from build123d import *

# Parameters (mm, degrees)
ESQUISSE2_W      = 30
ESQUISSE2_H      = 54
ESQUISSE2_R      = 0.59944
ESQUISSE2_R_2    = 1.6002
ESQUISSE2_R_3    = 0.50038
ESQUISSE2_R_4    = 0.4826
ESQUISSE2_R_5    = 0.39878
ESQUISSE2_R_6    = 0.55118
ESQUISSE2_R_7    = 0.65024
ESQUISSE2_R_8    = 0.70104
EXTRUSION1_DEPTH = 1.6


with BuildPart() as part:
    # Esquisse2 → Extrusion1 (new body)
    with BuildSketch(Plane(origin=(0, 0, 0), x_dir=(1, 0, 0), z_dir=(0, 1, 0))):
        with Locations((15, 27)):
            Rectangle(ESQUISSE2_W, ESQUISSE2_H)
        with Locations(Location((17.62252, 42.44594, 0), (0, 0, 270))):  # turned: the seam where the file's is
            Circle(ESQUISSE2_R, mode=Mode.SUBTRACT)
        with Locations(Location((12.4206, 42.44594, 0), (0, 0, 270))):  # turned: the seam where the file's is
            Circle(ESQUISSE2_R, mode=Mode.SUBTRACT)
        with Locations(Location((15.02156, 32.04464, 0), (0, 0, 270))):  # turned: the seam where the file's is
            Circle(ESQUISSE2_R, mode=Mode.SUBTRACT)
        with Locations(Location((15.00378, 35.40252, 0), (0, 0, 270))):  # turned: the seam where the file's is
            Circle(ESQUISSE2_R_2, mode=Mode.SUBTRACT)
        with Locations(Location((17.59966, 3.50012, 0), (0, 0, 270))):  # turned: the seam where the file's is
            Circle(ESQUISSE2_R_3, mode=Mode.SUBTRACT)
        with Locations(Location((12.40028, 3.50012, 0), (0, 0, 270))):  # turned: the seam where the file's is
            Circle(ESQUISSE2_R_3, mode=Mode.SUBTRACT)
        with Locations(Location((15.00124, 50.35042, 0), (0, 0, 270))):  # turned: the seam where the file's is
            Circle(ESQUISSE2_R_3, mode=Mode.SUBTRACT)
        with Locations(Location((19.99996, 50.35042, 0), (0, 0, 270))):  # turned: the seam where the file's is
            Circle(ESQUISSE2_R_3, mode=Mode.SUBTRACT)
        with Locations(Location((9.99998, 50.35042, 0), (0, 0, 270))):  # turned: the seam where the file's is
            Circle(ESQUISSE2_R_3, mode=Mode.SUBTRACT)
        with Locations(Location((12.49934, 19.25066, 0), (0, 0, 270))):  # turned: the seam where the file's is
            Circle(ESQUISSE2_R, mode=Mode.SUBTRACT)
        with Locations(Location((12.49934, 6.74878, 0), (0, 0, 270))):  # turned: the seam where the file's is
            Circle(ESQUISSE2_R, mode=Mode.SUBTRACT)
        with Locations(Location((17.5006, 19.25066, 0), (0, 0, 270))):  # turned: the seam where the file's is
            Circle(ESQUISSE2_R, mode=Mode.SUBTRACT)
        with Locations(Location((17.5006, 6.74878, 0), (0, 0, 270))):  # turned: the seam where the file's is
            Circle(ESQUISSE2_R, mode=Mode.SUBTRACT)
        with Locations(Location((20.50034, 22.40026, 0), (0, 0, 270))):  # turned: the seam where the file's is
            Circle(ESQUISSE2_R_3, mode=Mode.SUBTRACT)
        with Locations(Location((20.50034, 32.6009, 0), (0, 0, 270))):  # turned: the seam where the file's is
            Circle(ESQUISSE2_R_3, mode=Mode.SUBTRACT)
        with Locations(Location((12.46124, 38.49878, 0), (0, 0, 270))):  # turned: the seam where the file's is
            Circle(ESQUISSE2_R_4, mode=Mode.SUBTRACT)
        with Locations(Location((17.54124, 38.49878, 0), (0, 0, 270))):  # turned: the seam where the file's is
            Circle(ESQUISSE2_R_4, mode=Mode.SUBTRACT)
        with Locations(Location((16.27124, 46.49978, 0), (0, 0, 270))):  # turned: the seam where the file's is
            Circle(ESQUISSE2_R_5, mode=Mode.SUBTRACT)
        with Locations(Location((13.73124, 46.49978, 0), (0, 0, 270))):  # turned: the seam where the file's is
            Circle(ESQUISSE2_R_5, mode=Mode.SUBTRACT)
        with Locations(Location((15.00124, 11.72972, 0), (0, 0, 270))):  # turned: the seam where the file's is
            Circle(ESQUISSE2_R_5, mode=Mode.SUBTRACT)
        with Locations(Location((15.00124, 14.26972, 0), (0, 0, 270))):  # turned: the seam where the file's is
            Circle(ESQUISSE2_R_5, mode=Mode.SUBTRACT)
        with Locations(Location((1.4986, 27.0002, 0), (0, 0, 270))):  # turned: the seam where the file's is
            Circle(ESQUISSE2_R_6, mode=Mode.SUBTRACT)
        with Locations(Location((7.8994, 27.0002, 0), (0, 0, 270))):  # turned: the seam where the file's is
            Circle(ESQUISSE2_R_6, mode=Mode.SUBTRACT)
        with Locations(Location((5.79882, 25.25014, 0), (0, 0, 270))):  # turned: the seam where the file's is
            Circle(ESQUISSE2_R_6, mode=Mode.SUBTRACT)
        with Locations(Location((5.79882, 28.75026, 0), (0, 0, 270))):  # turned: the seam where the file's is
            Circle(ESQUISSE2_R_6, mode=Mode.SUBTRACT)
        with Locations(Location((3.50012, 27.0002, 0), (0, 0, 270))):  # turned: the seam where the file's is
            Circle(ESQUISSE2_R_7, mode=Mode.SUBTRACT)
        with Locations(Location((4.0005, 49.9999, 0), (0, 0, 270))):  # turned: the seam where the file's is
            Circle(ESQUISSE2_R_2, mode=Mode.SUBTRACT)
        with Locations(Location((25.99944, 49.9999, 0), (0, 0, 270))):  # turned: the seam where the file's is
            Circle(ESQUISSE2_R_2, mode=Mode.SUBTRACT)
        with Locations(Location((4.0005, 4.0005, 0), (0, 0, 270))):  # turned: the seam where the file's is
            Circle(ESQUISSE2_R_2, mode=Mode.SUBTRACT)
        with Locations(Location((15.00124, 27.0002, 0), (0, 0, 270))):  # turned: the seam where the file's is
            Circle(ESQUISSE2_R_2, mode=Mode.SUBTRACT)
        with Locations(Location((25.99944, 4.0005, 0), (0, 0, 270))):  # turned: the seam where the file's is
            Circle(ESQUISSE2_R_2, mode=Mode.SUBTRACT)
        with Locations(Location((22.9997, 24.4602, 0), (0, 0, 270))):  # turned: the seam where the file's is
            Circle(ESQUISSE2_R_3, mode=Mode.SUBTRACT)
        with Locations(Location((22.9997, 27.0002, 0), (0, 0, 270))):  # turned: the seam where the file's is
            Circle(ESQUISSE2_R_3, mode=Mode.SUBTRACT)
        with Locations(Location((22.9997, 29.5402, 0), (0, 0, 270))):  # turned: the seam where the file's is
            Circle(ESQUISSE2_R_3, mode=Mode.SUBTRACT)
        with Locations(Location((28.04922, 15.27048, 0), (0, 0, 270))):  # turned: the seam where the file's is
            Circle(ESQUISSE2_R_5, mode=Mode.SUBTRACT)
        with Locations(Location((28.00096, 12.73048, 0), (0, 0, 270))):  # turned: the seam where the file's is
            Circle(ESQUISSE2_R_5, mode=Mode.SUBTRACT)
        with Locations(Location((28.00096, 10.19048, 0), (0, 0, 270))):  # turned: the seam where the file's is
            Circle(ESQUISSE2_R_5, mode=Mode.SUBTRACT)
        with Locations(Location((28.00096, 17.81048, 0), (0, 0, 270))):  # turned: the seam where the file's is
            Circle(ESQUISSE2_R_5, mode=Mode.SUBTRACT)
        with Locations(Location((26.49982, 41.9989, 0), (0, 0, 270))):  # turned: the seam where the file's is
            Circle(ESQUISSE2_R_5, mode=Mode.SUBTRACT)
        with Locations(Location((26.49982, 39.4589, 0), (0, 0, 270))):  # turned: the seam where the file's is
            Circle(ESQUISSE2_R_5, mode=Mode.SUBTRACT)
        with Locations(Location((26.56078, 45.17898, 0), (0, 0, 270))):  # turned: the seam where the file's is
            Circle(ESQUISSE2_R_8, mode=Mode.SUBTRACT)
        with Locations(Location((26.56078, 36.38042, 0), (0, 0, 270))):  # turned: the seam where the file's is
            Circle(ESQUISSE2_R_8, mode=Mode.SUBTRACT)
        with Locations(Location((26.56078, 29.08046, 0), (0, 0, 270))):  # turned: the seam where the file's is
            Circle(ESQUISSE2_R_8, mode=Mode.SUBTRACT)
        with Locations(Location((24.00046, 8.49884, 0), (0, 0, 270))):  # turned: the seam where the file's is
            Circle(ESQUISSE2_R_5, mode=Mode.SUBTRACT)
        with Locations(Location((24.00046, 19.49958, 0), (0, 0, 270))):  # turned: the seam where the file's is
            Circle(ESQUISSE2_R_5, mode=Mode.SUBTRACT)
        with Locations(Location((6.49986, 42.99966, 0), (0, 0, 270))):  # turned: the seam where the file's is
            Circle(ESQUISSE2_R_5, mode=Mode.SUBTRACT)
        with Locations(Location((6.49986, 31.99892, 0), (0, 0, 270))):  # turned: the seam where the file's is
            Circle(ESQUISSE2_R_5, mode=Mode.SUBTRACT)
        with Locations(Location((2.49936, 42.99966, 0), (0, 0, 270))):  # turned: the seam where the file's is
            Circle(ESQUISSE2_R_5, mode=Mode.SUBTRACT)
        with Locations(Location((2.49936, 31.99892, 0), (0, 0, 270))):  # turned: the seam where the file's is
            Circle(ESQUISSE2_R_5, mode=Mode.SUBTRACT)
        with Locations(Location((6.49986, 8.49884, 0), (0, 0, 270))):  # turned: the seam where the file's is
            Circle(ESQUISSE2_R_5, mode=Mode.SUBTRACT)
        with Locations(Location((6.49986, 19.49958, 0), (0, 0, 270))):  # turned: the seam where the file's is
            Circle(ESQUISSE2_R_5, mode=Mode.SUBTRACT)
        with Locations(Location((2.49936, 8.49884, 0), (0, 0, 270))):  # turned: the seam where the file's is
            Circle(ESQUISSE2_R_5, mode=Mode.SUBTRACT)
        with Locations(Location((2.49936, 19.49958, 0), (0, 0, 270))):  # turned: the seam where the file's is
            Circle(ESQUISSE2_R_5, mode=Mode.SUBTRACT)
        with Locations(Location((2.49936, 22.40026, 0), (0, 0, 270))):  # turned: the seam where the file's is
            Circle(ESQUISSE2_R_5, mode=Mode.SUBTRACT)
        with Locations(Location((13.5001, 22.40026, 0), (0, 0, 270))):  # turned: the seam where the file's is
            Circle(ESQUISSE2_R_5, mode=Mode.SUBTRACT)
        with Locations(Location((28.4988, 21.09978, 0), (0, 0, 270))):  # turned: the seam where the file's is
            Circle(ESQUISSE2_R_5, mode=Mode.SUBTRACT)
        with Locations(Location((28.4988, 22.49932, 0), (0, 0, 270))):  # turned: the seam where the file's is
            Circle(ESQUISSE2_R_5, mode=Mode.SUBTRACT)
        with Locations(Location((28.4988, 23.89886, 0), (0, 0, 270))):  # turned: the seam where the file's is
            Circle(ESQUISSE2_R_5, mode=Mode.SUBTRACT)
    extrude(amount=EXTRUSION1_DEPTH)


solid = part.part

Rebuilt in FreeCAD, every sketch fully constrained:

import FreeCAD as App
import Part
import Sketcher


def add_polygon(sketch, points):
    """Adds a closed chain of lines whose ends are joined by coincident constraints."""
    first, n = sketch.GeometryCount, len(points)
    for a, b in zip(points, points[1:] + points[:1]):
        sketch.addGeometry(Part.LineSegment(App.Vector(*a, 0), App.Vector(*b, 0)), False)
    for i in range(n):
        sketch.addConstraint(Sketcher.Constraint("Coincident", first + i, 2, first + (i + 1) % n, 1))

doc = App.newDocument("Part")
params = doc.addObject("Spreadsheet::Sheet", "Params")
for row, (alias, value) in enumerate([
    ("sketch1_width", "30 mm"),
    ("sketch1_height", "54 mm"),
    ("pad1_length", "1.6 mm"),
], start=1):
    params.set(f"A{row}", alias)
    params.set(f"B{row}", "=" + value)
    params.setAlias(f"B{row}", alias)

body = doc.addObject("PartDesign::Body", "Body")

sketch1 = body.newObject("Sketcher::SketchObject", "Sketch")
sketch1.AttachmentSupport = (doc.getObject("XZ_Plane"), [""])
sketch1.MapMode = "FlatFace"
add_polygon(sketch1, [(0, -54), (0, 0), (30, 0), (30, -54)])
sketch1.addGeometry(Part.Circle(App.Vector(4, -4, 0), App.Vector(0, 0, 1), 1.6), False)
sketch1.addGeometry(Part.Circle(App.Vector(2.5, -8.5, 0), App.Vector(0, 0, 1), 0.4), False)
sketch1.addGeometry(Part.Circle(App.Vector(6.5, -8.5, 0), App.Vector(0, 0, 1), 0.4), False)
sketch1.addGeometry(Part.Circle(App.Vector(12.4, -3.5, 0), App.Vector(0, 0, 1), 0.5), False)
sketch1.addGeometry(Part.Circle(App.Vector(12.5, -6.75, 0), App.Vector(0, 0, 1), 0.6), False)
sketch1.addGeometry(Part.Circle(App.Vector(2.5, -19.5, 0), App.Vector(0, 0, 1), 0.4), False)
sketch1.addGeometry(Part.Circle(App.Vector(6.5, -19.5, 0), App.Vector(0, 0, 1), 0.4), False)
sketch1.addGeometry(Part.Circle(App.Vector(2.5, -22.4, 0), App.Vector(0, 0, 1), 0.4), False)
sketch1.addGeometry(Part.Circle(App.Vector(5.8, -25.25, 0), App.Vector(0, 0, 1), 0.55), False)
sketch1.addGeometry(Part.Circle(App.Vector(12.5, -19.25, 0), App.Vector(0, 0, 1), 0.6), False)
sketch1.addGeometry(Part.Circle(App.Vector(13.5, -22.4, 0), App.Vector(0, 0, 1), 0.4), False)
sketch1.addGeometry(Part.Circle(App.Vector(17.6, -3.5, 0), App.Vector(0, 0, 1), 0.5), False)
sketch1.addGeometry(Part.Circle(App.Vector(17.5, -6.75, 0), App.Vector(0, 0, 1), 0.6), False)
sketch1.addGeometry(Part.Circle(App.Vector(15, -11.73, 0), App.Vector(0, 0, 1), 0.4), False)
sketch1.addGeometry(Part.Circle(App.Vector(15, -14.27, 0), App.Vector(0, 0, 1), 0.4), False)
sketch1.addGeometry(Part.Circle(App.Vector(24, -8.5, 0), App.Vector(0, 0, 1), 0.4), False)
sketch1.addGeometry(Part.Circle(App.Vector(26, -4, 0), App.Vector(0, 0, 1), 1.6), False)
sketch1.addGeometry(Part.Circle(App.Vector(28, -10.19, 0), App.Vector(0, 0, 1), 0.4), False)
sketch1.addGeometry(Part.Circle(App.Vector(28, -12.73, 0), App.Vector(0, 0, 1), 0.4), False)
sketch1.addGeometry(Part.Circle(App.Vector(17.5, -19.25, 0), App.Vector(0, 0, 1), 0.6), False)
sketch1.addGeometry(Part.Circle(App.Vector(20.5, -22.4, 0), App.Vector(0, 0, 1), 0.5), False)
sketch1.addGeometry(Part.Circle(App.Vector(24, -19.5, 0), App.Vector(0, 0, 1), 0.4), False)
sketch1.addGeometry(Part.Circle(App.Vector(28.05, -15.27, 0), App.Vector(0, 0, 1), 0.4), False)
sketch1.addGeometry(Part.Circle(App.Vector(28, -17.81, 0), App.Vector(0, 0, 1), 0.4), False)
sketch1.addGeometry(Part.Circle(App.Vector(23, -24.46, 0), App.Vector(0, 0, 1), 0.5), False)
sketch1.addGeometry(Part.Circle(App.Vector(28.5, -21.1, 0), App.Vector(0, 0, 1), 0.4), False)
sketch1.addGeometry(Part.Circle(App.Vector(28.5, -22.5, 0), App.Vector(0, 0, 1), 0.4), False)
sketch1.addGeometry(Part.Circle(App.Vector(28.5, -23.9, 0), App.Vector(0, 0, 1), 0.4), False)
sketch1.addGeometry(Part.Circle(App.Vector(1.5, -27, 0), App.Vector(0, 0, 1), 0.55), False)
sketch1.addGeometry(Part.Circle(App.Vector(3.5, -27, 0), App.Vector(0, 0, 1), 0.65), False)
sketch1.addGeometry(Part.Circle(App.Vector(2.5, -32, 0), App.Vector(0, 0, 1), 0.4), False)
sketch1.addGeometry(Part.Circle(App.Vector(5.8, -28.75, 0), App.Vector(0, 0, 1), 0.55), False)
sketch1.addGeometry(Part.Circle(App.Vector(7.9, -27, 0), App.Vector(0, 0, 1), 0.55), False)
sketch1.addGeometry(Part.Circle(App.Vector(6.5, -32, 0), App.Vector(0, 0, 1), 0.4), False)
sketch1.addGeometry(Part.Circle(App.Vector(12.46, -38.5, 0), App.Vector(0, 0, 1), 0.48), False)
sketch1.addGeometry(Part.Circle(App.Vector(2.5, -43, 0), App.Vector(0, 0, 1), 0.4), False)
sketch1.addGeometry(Part.Circle(App.Vector(6.5, -43, 0), App.Vector(0, 0, 1), 0.4), False)
sketch1.addGeometry(Part.Circle(App.Vector(4, -50, 0), App.Vector(0, 0, 1), 1.6), False)
sketch1.addGeometry(Part.Circle(App.Vector(12.42, -42.45, 0), App.Vector(0, 0, 1), 0.6), False)
sketch1.addGeometry(Part.Circle(App.Vector(10, -50.35, 0), App.Vector(0, 0, 1), 0.5), False)
sketch1.addGeometry(Part.Circle(App.Vector(13.73, -46.5, 0), App.Vector(0, 0, 1), 0.4), False)
sketch1.addGeometry(Part.Circle(App.Vector(15, -27, 0), App.Vector(0, 0, 1), 1.6), False)
sketch1.addGeometry(Part.Circle(App.Vector(15.02, -32.04, 0), App.Vector(0, 0, 1), 0.6), False)
sketch1.addGeometry(Part.Circle(App.Vector(20.5, -32.6, 0), App.Vector(0, 0, 1), 0.5), False)
sketch1.addGeometry(Part.Circle(App.Vector(15, -35.4, 0), App.Vector(0, 0, 1), 1.6), False)
sketch1.addGeometry(Part.Circle(App.Vector(17.54, -38.5, 0), App.Vector(0, 0, 1), 0.48), False)
sketch1.addGeometry(Part.Circle(App.Vector(23, -27, 0), App.Vector(0, 0, 1), 0.5), False)
sketch1.addGeometry(Part.Circle(App.Vector(23, -29.54, 0), App.Vector(0, 0, 1), 0.5), False)
sketch1.addGeometry(Part.Circle(App.Vector(26.56, -29.08, 0), App.Vector(0, 0, 1), 0.7), False)
sketch1.addGeometry(Part.Circle(App.Vector(26.56, -36.38, 0), App.Vector(0, 0, 1), 0.7), False)
sketch1.addGeometry(Part.Circle(App.Vector(17.62, -42.45, 0), App.Vector(0, 0, 1), 0.6), False)
sketch1.addGeometry(Part.Circle(App.Vector(16.27, -46.5, 0), App.Vector(0, 0, 1), 0.4), False)
sketch1.addGeometry(Part.Circle(App.Vector(15, -50.35, 0), App.Vector(0, 0, 1), 0.5), False)
sketch1.addGeometry(Part.Circle(App.Vector(20, -50.35, 0), App.Vector(0, 0, 1), 0.5), False)
sketch1.addGeometry(Part.Circle(App.Vector(26.5, -39.46, 0), App.Vector(0, 0, 1), 0.4), False)
sketch1.addGeometry(Part.Circle(App.Vector(26.5, -42, 0), App.Vector(0, 0, 1), 0.4), False)
sketch1.addGeometry(Part.Circle(App.Vector(26.56, -45.18, 0), App.Vector(0, 0, 1), 0.7), False)
sketch1.addGeometry(Part.Circle(App.Vector(26, -50, 0), App.Vector(0, 0, 1), 1.6), False)
sketch1.addConstraint([
    Sketcher.Constraint("Vertical", 0),
    Sketcher.Constraint("Horizontal", 1),
    Sketcher.Constraint("Vertical", 2),
    Sketcher.Constraint("Horizontal", 3),
    Sketcher.Constraint("Coincident", 0, 2, -1, 1),
    Sketcher.Constraint("Equal", 5, 6),
    Sketcher.Constraint("Equal", 6, 9),
    Sketcher.Constraint("Equal", 9, 10),
    Sketcher.Constraint("Equal", 10, 11),
    Sketcher.Constraint("Equal", 8, 13),
    Sketcher.Constraint("Equal", 11, 14),
    Sketcher.Constraint("Equal", 7, 15),
    Sketcher.Constraint("Equal", 13, 16),
    Sketcher.Constraint("Equal", 14, 17),
    Sketcher.Constraint("Equal", 17, 18),
    Sketcher.Constraint("Equal", 18, 19),
    Sketcher.Constraint("Equal", 4, 20),
    Sketcher.Constraint("Equal", 19, 21),
    Sketcher.Constraint("Equal", 21, 22),
    Sketcher.Constraint("Equal", 16, 23),
    Sketcher.Constraint("Equal", 15, 24),
    Sketcher.Constraint("Equal", 22, 25),
    Sketcher.Constraint("Equal", 25, 26),
    Sketcher.Constraint("Equal", 26, 27),
    Sketcher.Constraint("Equal", 24, 28),
    Sketcher.Constraint("Equal", 27, 29),
    Sketcher.Constraint("Equal", 29, 30),
    Sketcher.Constraint("Equal", 30, 31),
    Sketcher.Constraint("Equal", 12, 32),
    Sketcher.Constraint("Equal", 31, 34),
    Sketcher.Constraint("Equal", 32, 35),
    Sketcher.Constraint("Equal", 35, 36),
    Sketcher.Constraint("Equal", 34, 37),
    Sketcher.Constraint("Equal", 37, 39),
    Sketcher.Constraint("Equal", 39, 40),
    Sketcher.Constraint("Equal", 20, 41),
    Sketcher.Constraint("Equal", 23, 42),
    Sketcher.Constraint("Equal", 28, 43),
    Sketcher.Constraint("Equal", 40, 44),
    Sketcher.Constraint("Equal", 41, 45),
    Sketcher.Constraint("Equal", 42, 46),
    Sketcher.Constraint("Equal", 43, 47),
    Sketcher.Constraint("Equal", 45, 48),
    Sketcher.Constraint("Equal", 38, 49),
    Sketcher.Constraint("Equal", 47, 50),
    Sketcher.Constraint("Equal", 50, 51),
    Sketcher.Constraint("Equal", 52, 53),
    Sketcher.Constraint("Equal", 46, 54),
    Sketcher.Constraint("Equal", 44, 55),
    Sketcher.Constraint("Equal", 51, 56),
    Sketcher.Constraint("Equal", 56, 57),
    Sketcher.Constraint("Equal", 55, 58),
    Sketcher.Constraint("Equal", 58, 59),
    Sketcher.Constraint("Equal", 53, 60),
    Sketcher.Constraint("Equal", 48, 61),
    Sketcher.Constraint("Horizontal", 5, 3, 6, 3),
    Sketcher.Constraint("Horizontal", 9, 3, 10, 3),
    Sketcher.Constraint("Horizontal", 11, 3, 14, 3),
    Sketcher.Constraint("Horizontal", 7, 3, 15, 3),
    Sketcher.Constraint("Horizontal", 8, 3, 16, 3),
    Sketcher.Constraint("Horizontal", 6, 3, 19, 3),
    Sketcher.Constraint("Horizontal", 4, 3, 20, 3),
    Sketcher.Constraint("Horizontal", 13, 3, 23, 3),
    Sketcher.Constraint("Horizontal", 14, 3, 24, 3),
    Sketcher.Constraint("Horizontal", 10, 3, 25, 3),
    Sketcher.Constraint("Horizontal", 32, 3, 33, 3),
    Sketcher.Constraint("Horizontal", 33, 3, 36, 3),
    Sketcher.Constraint("Horizontal", 34, 3, 37, 3),
    Sketcher.Constraint("Horizontal", 39, 3, 40, 3),
    Sketcher.Constraint("Horizontal", 36, 3, 45, 3),
    Sketcher.Constraint("Horizontal", 38, 3, 49, 3),
    Sketcher.Constraint("Horizontal", 45, 3, 50, 3),
    Sketcher.Constraint("Horizontal", 42, 3, 54, 3),
    Sketcher.Constraint("Horizontal", 44, 3, 55, 3),
    Sketcher.Constraint("Horizontal", 43, 3, 56, 3),
    Sketcher.Constraint("Horizontal", 56, 3, 57, 3),
    Sketcher.Constraint("Horizontal", 41, 3, 61, 3),
    Sketcher.Constraint("Vertical", 5, 3, 9, 3),
    Sketcher.Constraint("Vertical", 6, 3, 10, 3),
    Sketcher.Constraint("Vertical", 9, 3, 11, 3),
    Sketcher.Constraint("Vertical", 8, 3, 13, 3),
    Sketcher.Constraint("Vertical", 17, 3, 18, 3),
    Sketcher.Constraint("Vertical", 21, 3, 22, 3),
    Sketcher.Constraint("Vertical", 16, 3, 23, 3),
    Sketcher.Constraint("Vertical", 19, 3, 25, 3),
    Sketcher.Constraint("Vertical", 22, 3, 27, 3),
    Sketcher.Constraint("Vertical", 29, 3, 30, 3),
    Sketcher.Constraint("Vertical", 30, 3, 31, 3),
    Sketcher.Constraint("Vertical", 11, 3, 34, 3),
    Sketcher.Constraint("Vertical", 12, 3, 35, 3),
    Sketcher.Constraint("Vertical", 10, 3, 37, 3),
    Sketcher.Constraint("Vertical", 34, 3, 39, 3),
    Sketcher.Constraint("Vertical", 37, 3, 40, 3),
    Sketcher.Constraint("Vertical", 4, 3, 41, 3),
    Sketcher.Constraint("Vertical", 18, 3, 45, 3),
    Sketcher.Constraint("Vertical", 24, 3, 47, 3),
    Sketcher.Constraint("Vertical", 28, 3, 50, 3),
    Sketcher.Constraint("Vertical", 50, 3, 51, 3),
    Sketcher.Constraint("Vertical", 52, 3, 53, 3),
    Sketcher.Constraint("Vertical", 45, 3, 56, 3),
    Sketcher.Constraint("Vertical", 58, 3, 59, 3),
    Sketcher.Constraint("Vertical", 53, 3, 60, 3),
    Sketcher.Constraint("Vertical", 20, 3, 61, 3),
    Sketcher.Constraint("DistanceX", 1, 1, 1, 2, 30.0),
    Sketcher.Constraint("DistanceY", 0, 1, 0, 2, 54.0),
    Sketcher.Constraint("Diameter", 4, 3.2004),
    Sketcher.Constraint("Diameter", 38, 0.9652),
    Sketcher.Constraint("Diameter", 5, 0.79756),
    Sketcher.Constraint("Diameter", 7, 1.00076),
    Sketcher.Constraint("Diameter", 8, 1.19888),
    Sketcher.Constraint("Diameter", 12, 1.10236),
    Sketcher.Constraint("Diameter", 33, 1.30048),
    Sketcher.Constraint("Diameter", 52, 1.40208),
    Sketcher.Constraint("DistanceX", -1, 1, 4, 3, 4.0005),
    Sketcher.Constraint("DistanceY", 4, 3, -1, 1, 4.0005),
    Sketcher.Constraint("DistanceX", -1, 1, 14, 3, 13.5001),
    Sketcher.Constraint("DistanceX", -1, 1, 16, 3, 17.5006),
    Sketcher.Constraint("DistanceX", -1, 1, 28, 3, 22.9997),
    Sketcher.Constraint("DistanceY", 28, 3, -1, 1, 24.4602),
    Sketcher.Constraint("DistanceX", -1, 1, 29, 3, 28.4988),
    Sketcher.Constraint("DistanceX", -1, 1, 32, 3, 1.4986),
    Sketcher.Constraint("DistanceY", 32, 3, -1, 1, 27.0002),
    Sketcher.Constraint("DistanceX", -1, 1, 36, 3, 7.8994),
    Sketcher.Constraint("DistanceY", 41, 3, -1, 1, 49.9999),
    Sketcher.Constraint("DistanceX", -1, 1, 42, 3, 12.4206),
    Sketcher.Constraint("DistanceY", 47, 3, -1, 1, 32.6009),
    Sketcher.Constraint("DistanceY", 51, 3, -1, 1, 29.5402),
    Sketcher.Constraint("DistanceY", 58, 3, -1, 1, 39.4589),
    Sketcher.Constraint("DistanceY", 59, 3, -1, 1, 41.9989),
    Sketcher.Constraint("DistanceX", -1, 1, 5, 3, 2.49936),
    Sketcher.Constraint("DistanceY", 5, 3, -1, 1, 8.49884),
    Sketcher.Constraint("DistanceX", -1, 1, 6, 3, 6.49986),
    Sketcher.Constraint("DistanceX", -1, 1, 7, 3, 12.40028),
    Sketcher.Constraint("DistanceY", 7, 3, -1, 1, 3.50012),
    Sketcher.Constraint("DistanceX", -1, 1, 8, 3, 12.49934),
    Sketcher.Constraint("DistanceY", 8, 3, -1, 1, 6.74878),
    Sketcher.Constraint("DistanceY", 9, 3, -1, 1, 19.49958),
    Sketcher.Constraint("DistanceY", 11, 3, -1, 1, 22.40026),
    Sketcher.Constraint("DistanceX", -1, 1, 12, 3, 5.79882),
    Sketcher.Constraint("DistanceY", 12, 3, -1, 1, 25.25014),
    Sketcher.Constraint("DistanceY", 13, 3, -1, 1, 19.25066),
    Sketcher.Constraint("DistanceX", -1, 1, 15, 3, 17.59966),
    Sketcher.Constraint("DistanceX", -1, 1, 17, 3, 15.00124),
    Sketcher.Constraint("DistanceY", 17, 3, -1, 1, 11.72972),
    Sketcher.Constraint("DistanceY", 18, 3, -1, 1, 14.26972),
    Sketcher.Constraint("DistanceX", -1, 1, 19, 3, 24.00046),
    Sketcher.Constraint("DistanceX", -1, 1, 20, 3, 25.99944),
    Sketcher.Constraint("DistanceX", -1, 1, 21, 3, 28.00096),
    Sketcher.Constraint("DistanceY", 21, 3, -1, 1, 10.19048),
    Sketcher.Constraint("DistanceY", 22, 3, -1, 1, 12.73048),
    Sketcher.Constraint("DistanceX", -1, 1, 24, 3, 20.50034),
    Sketcher.Constraint("DistanceX", -1, 1, 26, 3, 28.04922),
    Sketcher.Constraint("DistanceY", 26, 3, -1, 1, 15.27048),
    Sketcher.Constraint("DistanceY", 27, 3, -1, 1, 17.81048),
    Sketcher.Constraint("DistanceY", 29, 3, -1, 1, 21.09978),
    Sketcher.Constraint("DistanceY", 30, 3, -1, 1, 22.49932),
    Sketcher.Constraint("DistanceY", 31, 3, -1, 1, 23.89886),
    Sketcher.Constraint("DistanceX", -1, 1, 33, 3, 3.50012),
    Sketcher.Constraint("DistanceY", 34, 3, -1, 1, 31.99892),
    Sketcher.Constraint("DistanceY", 35, 3, -1, 1, 28.75026),
    Sketcher.Constraint("DistanceX", -1, 1, 38, 3, 12.46124),
    Sketcher.Constraint("DistanceY", 38, 3, -1, 1, 38.49878),
    Sketcher.Constraint("DistanceY", 39, 3, -1, 1, 42.99966),
    Sketcher.Constraint("DistanceY", 42, 3, -1, 1, 42.44594),
    Sketcher.Constraint("DistanceX", -1, 1, 43, 3, 9.99998),
    Sketcher.Constraint("DistanceY", 43, 3, -1, 1, 50.35042),
    Sketcher.Constraint("DistanceX", -1, 1, 44, 3, 13.73124),
    Sketcher.Constraint("DistanceY", 44, 3, -1, 1, 46.49978),
    Sketcher.Constraint("DistanceX", -1, 1, 46, 3, 15.02156),
    Sketcher.Constraint("DistanceY", 46, 3, -1, 1, 32.04464),
    Sketcher.Constraint("DistanceX", -1, 1, 48, 3, 15.00378),
    Sketcher.Constraint("DistanceY", 48, 3, -1, 1, 35.40252),
    Sketcher.Constraint("DistanceX", -1, 1, 49, 3, 17.54124),
    Sketcher.Constraint("DistanceX", -1, 1, 52, 3, 26.56078),
    Sketcher.Constraint("DistanceY", 52, 3, -1, 1, 29.08046),
    Sketcher.Constraint("DistanceY", 53, 3, -1, 1, 36.38042),
    Sketcher.Constraint("DistanceX", -1, 1, 54, 3, 17.62252),
    Sketcher.Constraint("DistanceX", -1, 1, 55, 3, 16.27124),
    Sketcher.Constraint("DistanceX", -1, 1, 57, 3, 19.99996),
    Sketcher.Constraint("DistanceX", -1, 1, 58, 3, 26.49982),
    Sketcher.Constraint("DistanceY", 60, 3, -1, 1, 45.17898),
])
sketch1.setExpression("Constraints[107]", "Params.sketch1_width")
sketch1.setExpression("Constraints[108]", "Params.sketch1_height")
pad1 = body.newObject("PartDesign::Pad", "Pad")
pad1.Profile = sketch1
pad1.setExpression("Length", "Params.pad1_length")
pad1.Reversed = True

doc.recompute()
